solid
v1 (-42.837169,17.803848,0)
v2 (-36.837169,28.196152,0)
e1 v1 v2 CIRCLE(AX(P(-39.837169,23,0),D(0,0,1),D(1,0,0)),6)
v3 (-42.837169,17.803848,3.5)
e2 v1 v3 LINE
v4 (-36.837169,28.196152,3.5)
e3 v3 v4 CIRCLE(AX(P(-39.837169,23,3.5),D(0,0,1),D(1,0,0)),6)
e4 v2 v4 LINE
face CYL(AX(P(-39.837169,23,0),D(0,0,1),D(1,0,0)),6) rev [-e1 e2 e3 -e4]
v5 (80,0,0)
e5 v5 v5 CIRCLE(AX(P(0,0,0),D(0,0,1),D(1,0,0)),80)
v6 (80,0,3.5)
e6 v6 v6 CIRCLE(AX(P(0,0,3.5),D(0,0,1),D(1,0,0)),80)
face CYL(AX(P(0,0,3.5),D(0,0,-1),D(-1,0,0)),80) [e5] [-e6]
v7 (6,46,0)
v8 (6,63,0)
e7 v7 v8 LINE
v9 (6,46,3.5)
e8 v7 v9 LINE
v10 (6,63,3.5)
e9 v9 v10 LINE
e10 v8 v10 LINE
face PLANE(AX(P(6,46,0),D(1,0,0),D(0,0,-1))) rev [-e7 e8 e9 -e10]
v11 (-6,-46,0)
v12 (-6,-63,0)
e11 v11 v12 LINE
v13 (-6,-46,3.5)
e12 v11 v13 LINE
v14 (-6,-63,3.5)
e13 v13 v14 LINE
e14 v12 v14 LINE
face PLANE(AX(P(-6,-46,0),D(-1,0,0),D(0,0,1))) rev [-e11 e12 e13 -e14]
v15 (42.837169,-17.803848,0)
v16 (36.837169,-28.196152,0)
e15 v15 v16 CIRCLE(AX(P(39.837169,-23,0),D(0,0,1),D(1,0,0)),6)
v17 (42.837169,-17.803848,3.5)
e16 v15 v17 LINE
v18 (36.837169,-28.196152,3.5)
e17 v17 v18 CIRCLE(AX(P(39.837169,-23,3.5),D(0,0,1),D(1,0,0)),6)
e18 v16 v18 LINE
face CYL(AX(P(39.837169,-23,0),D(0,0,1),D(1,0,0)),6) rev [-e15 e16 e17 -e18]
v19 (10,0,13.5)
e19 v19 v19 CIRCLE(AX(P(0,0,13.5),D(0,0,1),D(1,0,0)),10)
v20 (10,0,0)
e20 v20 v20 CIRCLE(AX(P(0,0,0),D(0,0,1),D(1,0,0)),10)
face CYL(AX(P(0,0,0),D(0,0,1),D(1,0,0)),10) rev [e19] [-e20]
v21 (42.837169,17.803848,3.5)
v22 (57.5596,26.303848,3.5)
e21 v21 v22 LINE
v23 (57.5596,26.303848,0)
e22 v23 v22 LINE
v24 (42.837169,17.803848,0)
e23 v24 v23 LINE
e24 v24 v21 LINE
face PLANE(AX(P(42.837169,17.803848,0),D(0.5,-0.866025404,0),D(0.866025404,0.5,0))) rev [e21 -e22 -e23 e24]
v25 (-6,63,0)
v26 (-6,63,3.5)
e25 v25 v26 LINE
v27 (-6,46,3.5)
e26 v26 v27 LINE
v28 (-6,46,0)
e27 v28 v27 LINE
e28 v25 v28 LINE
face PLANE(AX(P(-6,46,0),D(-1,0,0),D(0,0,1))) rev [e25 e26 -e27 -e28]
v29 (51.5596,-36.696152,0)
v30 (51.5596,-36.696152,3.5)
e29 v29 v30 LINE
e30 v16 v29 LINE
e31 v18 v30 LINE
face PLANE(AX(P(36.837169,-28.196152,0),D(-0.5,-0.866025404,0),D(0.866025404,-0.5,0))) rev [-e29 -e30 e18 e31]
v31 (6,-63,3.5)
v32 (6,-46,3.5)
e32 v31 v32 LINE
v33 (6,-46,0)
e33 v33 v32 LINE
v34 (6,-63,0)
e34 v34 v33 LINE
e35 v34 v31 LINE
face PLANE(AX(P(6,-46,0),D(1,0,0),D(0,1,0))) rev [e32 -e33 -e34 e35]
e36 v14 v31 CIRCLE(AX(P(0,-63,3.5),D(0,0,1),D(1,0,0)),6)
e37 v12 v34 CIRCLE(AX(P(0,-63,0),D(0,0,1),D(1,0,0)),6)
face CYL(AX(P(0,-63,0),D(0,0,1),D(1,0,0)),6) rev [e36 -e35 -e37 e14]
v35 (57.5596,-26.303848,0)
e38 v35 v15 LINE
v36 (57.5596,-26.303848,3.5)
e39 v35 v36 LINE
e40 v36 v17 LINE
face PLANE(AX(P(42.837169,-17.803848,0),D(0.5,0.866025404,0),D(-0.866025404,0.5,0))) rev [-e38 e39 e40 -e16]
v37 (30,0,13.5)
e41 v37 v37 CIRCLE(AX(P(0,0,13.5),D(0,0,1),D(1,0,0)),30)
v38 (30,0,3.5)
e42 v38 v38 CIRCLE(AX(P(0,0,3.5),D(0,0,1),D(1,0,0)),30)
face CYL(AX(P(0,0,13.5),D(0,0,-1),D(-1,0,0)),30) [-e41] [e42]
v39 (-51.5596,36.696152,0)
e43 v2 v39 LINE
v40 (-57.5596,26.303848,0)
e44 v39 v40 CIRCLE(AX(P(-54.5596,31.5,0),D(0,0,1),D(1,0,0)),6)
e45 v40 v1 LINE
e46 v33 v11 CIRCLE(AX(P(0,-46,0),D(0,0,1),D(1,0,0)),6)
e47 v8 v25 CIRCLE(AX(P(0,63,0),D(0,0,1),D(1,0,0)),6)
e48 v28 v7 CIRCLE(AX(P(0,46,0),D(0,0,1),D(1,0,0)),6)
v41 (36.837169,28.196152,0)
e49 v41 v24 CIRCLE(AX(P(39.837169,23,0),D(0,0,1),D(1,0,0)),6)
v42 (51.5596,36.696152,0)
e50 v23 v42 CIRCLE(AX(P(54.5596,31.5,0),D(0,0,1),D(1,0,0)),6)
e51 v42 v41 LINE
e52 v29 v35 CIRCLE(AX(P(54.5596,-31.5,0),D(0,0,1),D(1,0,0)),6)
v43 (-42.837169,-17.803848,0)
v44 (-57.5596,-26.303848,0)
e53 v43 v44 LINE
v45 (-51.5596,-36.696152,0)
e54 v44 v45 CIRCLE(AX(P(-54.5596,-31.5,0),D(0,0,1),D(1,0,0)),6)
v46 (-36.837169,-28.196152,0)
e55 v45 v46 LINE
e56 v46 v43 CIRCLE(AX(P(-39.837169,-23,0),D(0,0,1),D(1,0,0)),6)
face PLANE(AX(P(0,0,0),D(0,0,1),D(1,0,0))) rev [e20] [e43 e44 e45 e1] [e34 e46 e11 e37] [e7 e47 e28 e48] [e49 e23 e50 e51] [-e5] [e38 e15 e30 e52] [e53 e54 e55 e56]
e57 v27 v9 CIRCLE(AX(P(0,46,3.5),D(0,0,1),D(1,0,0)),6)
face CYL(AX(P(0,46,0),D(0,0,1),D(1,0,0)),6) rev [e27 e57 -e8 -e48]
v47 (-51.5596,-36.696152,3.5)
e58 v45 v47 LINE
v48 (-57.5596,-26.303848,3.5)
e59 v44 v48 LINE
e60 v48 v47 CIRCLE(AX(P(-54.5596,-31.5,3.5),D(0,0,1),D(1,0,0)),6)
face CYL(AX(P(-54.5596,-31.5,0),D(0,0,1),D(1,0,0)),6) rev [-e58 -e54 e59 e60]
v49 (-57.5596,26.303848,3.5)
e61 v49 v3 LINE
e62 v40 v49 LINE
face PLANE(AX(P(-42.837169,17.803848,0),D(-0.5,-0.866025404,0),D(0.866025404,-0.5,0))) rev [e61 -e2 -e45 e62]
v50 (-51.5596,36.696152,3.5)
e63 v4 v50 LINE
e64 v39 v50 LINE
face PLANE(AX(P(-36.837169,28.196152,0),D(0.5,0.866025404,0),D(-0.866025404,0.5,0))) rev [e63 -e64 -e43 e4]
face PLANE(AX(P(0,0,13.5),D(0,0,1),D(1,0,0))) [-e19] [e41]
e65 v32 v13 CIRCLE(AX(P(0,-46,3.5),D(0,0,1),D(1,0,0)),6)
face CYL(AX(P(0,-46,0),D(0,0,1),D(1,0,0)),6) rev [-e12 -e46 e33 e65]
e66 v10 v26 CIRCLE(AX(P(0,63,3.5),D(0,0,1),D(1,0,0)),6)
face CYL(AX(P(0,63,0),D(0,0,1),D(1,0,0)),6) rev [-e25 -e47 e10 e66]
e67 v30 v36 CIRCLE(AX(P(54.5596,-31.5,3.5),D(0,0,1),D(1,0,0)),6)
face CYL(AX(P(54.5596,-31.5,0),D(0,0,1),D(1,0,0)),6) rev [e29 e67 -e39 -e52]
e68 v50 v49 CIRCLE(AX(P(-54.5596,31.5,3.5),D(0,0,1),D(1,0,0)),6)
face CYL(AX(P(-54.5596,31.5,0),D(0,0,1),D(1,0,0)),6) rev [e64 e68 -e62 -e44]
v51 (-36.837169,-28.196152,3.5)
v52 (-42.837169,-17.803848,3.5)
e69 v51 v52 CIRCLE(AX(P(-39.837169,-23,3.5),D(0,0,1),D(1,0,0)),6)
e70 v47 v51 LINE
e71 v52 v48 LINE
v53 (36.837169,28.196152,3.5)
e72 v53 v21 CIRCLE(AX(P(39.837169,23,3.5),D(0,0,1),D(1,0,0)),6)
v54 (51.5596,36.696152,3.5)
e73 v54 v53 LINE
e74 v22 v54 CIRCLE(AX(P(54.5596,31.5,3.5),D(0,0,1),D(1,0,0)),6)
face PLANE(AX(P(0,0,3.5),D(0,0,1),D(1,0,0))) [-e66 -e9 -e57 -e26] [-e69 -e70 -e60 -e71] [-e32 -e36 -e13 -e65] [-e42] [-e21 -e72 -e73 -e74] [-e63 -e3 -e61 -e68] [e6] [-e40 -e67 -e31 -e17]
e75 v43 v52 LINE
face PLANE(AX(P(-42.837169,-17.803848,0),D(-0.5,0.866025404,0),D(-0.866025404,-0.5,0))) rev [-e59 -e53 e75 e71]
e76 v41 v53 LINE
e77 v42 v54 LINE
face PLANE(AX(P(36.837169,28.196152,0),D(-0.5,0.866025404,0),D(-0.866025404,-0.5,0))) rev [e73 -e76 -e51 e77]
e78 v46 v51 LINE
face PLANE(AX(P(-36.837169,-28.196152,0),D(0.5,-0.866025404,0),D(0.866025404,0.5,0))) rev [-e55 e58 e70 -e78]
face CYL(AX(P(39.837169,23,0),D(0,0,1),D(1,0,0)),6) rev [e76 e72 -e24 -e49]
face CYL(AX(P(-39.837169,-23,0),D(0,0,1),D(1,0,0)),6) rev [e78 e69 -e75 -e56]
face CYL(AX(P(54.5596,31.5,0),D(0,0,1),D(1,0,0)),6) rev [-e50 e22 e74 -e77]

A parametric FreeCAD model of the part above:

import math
import FreeCAD as App
import Part
import Sketcher
from FreeCAD import Vector
Q = App.Units.Quantity

doc = App.newDocument("Part")
body = doc.addObject("PartDesign::Body", "Body")

sketch1 = body.newObject("Sketcher::SketchObject", "Sketch")
sketch1.AttachmentSupport = (doc.getObject("XY_Plane"), [""])
sketch1.MapMode = "FlatFace"
sketch1.addGeometry(Part.Circle(Vector(0, 0, 0), Vector(0, 0, 1), 80), False)
sketch1.addConstraint(Sketcher.Constraint("Coincident", 0, 3, -1, 1))
sketch1.addConstraint(Sketcher.Constraint("Diameter", 0, 160.0))
pad1 = body.newObject("PartDesign::Pad", "Pad")
pad1.Profile = sketch1
pad1.Length = 3.5

sketch2 = body.newObject("Sketcher::SketchObject", "Sketch001")
sketch2.AttachmentSupport = (doc.getObject("XY_Plane"), [""])
sketch2.MapMode = "FlatFace"
sketch2.AttachmentOffset = App.Placement(Vector(0, 0, 3.5), App.Rotation())
sketch2.addGeometry(Part.Circle(Vector(0, 0, 0), Vector(0, 0, 1), 10), False)
sketch2.addConstraint(Sketcher.Constraint("Coincident", 0, 3, -1, 1))
sketch2.addConstraint(Sketcher.Constraint("Diameter", 0, 20.0))
pocket1 = body.newObject("PartDesign::Pocket", "Pocket")
pocket1.Profile = sketch2
pocket1.Length = 3.5

sketch3 = body.newObject("Sketcher::SketchObject", "Sketch002")
sketch3.AttachmentSupport = (doc.getObject("XY_Plane"), [""])
sketch3.MapMode = "FlatFace"
sketch3.AttachmentOffset = App.Placement(Vector(0, 0, 13.5), App.Rotation())
sketch3.addGeometry(Part.Circle(Vector(0, 0, 0), Vector(0, 0, 1), 30), False)
sketch3.addGeometry(Part.Circle(Vector(0, 0, 0), Vector(0, 0, 1), 10), False)
sketch3.addConstraint(Sketcher.Constraint("Coincident", 0, 3, -1, 1))
sketch3.addConstraint(Sketcher.Constraint("Coincident", 1, 3, -1, 1))
sketch3.addConstraint(Sketcher.Constraint("Diameter", 0, 60.0))
sketch3.addConstraint(Sketcher.Constraint("Diameter", 1, 20.0))
pad2 = body.newObject("PartDesign::Pad", "Pad001")
pad2.Profile = sketch3
pad2.Length = 10
pad2.Reversed = True

sketch4 = body.newObject("Sketcher::SketchObject", "Sketch003")
sketch4.AttachmentSupport = (doc.getObject("XY_Plane"), [""])
sketch4.MapMode = "FlatFace"
sketch4.AttachmentOffset = App.Placement(Vector(0, 0, 3.5), App.Rotation())
sketch4.addGeometry(Part.LineSegment(Vector(52, 37, 0), Vector(37, 28, 0)), False)
sketch4.addGeometry(Part.ArcOfCircle(Part.Circle(Vector(40, 23, 0), Vector(0, 0, 1), 6), math.radians(120), math.radians(300)), False)
sketch4.addGeometry(Part.LineSegment(Vector(43, 18, 0), Vector(58, 26, 0)), False)
sketch4.addGeometry(Part.ArcOfCircle(Part.Circle(Vector(55, 32, 0), Vector(0, 0, 1), 6), math.radians(-60), math.radians(120)), False)
sketch4.addGeometry(Part.LineSegment(Vector(58, -26, 0), Vector(43, -18, 0)), False)
sketch4.addGeometry(Part.ArcOfCircle(Part.Circle(Vector(40, -23, 0), Vector(0, 0, 1), 6), math.radians(60), math.radians(240)), False)
sketch4.addGeometry(Part.LineSegment(Vector(37, -28, 0), Vector(52, -37, 0)), False)
sketch4.addGeometry(Part.ArcOfCircle(Part.Circle(Vector(55, -32, 0), Vector(0, 0, 1), 6), math.radians(-120), math.radians(60)), False)
sketch4.addGeometry(Part.LineSegment(Vector(6, -63, 0), Vector(6, -46, 0)), False)
sketch4.addGeometry(Part.ArcOfCircle(Part.Circle(Vector(0, -46, 0), Vector(0, 0, 1), 6), math.radians(0), math.radians(180)), False)
sketch4.addGeometry(Part.LineSegment(Vector(-6, -46, 0), Vector(-6, -63, 0)), False)
sketch4.addGeometry(Part.ArcOfCircle(Part.Circle(Vector(0, -63, 0), Vector(0, 0, 1), 6), math.radians(180), math.radians(360)), False)
sketch4.addGeometry(Part.LineSegment(Vector(-52, -37, 0), Vector(-37, -28, 0)), False)
sketch4.addGeometry(Part.ArcOfCircle(Part.Circle(Vector(-40, -23, 0), Vector(0, 0, 1), 6), math.radians(-60), math.radians(120)), False)
sketch4.addGeometry(Part.LineSegment(Vector(-43, -18, 0), Vector(-58, -26, 0)), False)
sketch4.addGeometry(Part.ArcOfCircle(Part.Circle(Vector(-55, -32, 0), Vector(0, 0, 1), 6), math.radians(120), math.radians(300)), False)
sketch4.addGeometry(Part.LineSegment(Vector(-58, 26, 0), Vector(-43, 18, 0)), False)
sketch4.addGeometry(Part.ArcOfCircle(Part.Circle(Vector(-40, 23, 0), Vector(0, 0, 1), 6), math.radians(-120), math.radians(60)), False)
sketch4.addGeometry(Part.LineSegment(Vector(-37, 28, 0), Vector(-52, 37, 0)), False)
sketch4.addGeometry(Part.ArcOfCircle(Part.Circle(Vector(-55, 32, 0), Vector(0, 0, 1), 6), math.radians(60), math.radians(240)), False)
sketch4.addGeometry(Part.LineSegment(Vector(-6, 63, 0), Vector(-6, 46, 0)), False)
sketch4.addGeometry(Part.ArcOfCircle(Part.Circle(Vector(0, 46, 0), Vector(0, 0, 1), 6), math.radians(180), math.radians(360)), False)
sketch4.addGeometry(Part.LineSegment(Vector(6, 46, 0), Vector(6, 63, 0)), False)
sketch4.addGeometry(Part.ArcOfCircle(Part.Circle(Vector(0, 63, 0), Vector(0, 0, 1), 6), math.radians(0), math.radians(180)), False)
sketch4.addConstraint(Sketcher.Constraint("Tangent", 0, 2, 1, 1))
sketch4.addConstraint(Sketcher.Constraint("Tangent", 1, 2, 2, 1))
sketch4.addConstraint(Sketcher.Constraint("Tangent", 2, 2, 3, 1))
sketch4.addConstraint(Sketcher.Constraint("Tangent", 3, 2, 0, 1))
sketch4.addConstraint(Sketcher.Constraint("Tangent", 4, 2, 5, 1))
sketch4.addConstraint(Sketcher.Constraint("Tangent", 5, 2, 6, 1))
sketch4.addConstraint(Sketcher.Constraint("Tangent", 6, 2, 7, 1))
sketch4.addConstraint(Sketcher.Constraint("Tangent", 7, 2, 4, 1))
sketch4.addConstraint(Sketcher.Constraint("Tangent", 8, 2, 9, 1))
sketch4.addConstraint(Sketcher.Constraint("Tangent", 9, 2, 10, 1))
sketch4.addConstraint(Sketcher.Constraint("Tangent", 10, 2, 11, 1))
sketch4.addConstraint(Sketcher.Constraint("Tangent", 11, 2, 8, 1))
sketch4.addConstraint(Sketcher.Constraint("Tangent", 12, 2, 13, 1))
sketch4.addConstraint(Sketcher.Constraint("Tangent", 13, 2, 14, 1))
sketch4.addConstraint(Sketcher.Constraint("Tangent", 14, 2, 15, 1))
sketch4.addConstraint(Sketcher.Constraint("Tangent", 15, 2, 12, 1))
sketch4.addConstraint(Sketcher.Constraint("Tangent", 16, 2, 17, 1))
sketch4.addConstraint(Sketcher.Constraint("Tangent", 17, 2, 18, 1))
sketch4.addConstraint(Sketcher.Constraint("Tangent", 18, 2, 19, 1))
sketch4.addConstraint(Sketcher.Constraint("Tangent", 19, 2, 16, 1))
sketch4.addConstraint(Sketcher.Constraint("Tangent", 20, 2, 21, 1))
sketch4.addConstraint(Sketcher.Constraint("Tangent", 21, 2, 22, 1))
sketch4.addConstraint(Sketcher.Constraint("Tangent", 22, 2, 23, 1))
sketch4.addConstraint(Sketcher.Constraint("Tangent", 23, 2, 20, 1))
sketch4.addConstraint(Sketcher.Constraint("Vertical", 8))
sketch4.addConstraint(Sketcher.Constraint("Vertical", 10))
sketch4.addConstraint(Sketcher.Constraint("Vertical", 20))
sketch4.addConstraint(Sketcher.Constraint("Vertical", 22))
sketch4.addConstraint(Sketcher.Constraint("Equal", 1, 3))
sketch4.addConstraint(Sketcher.Constraint("Equal", 3, 5))
sketch4.addConstraint(Sketcher.Constraint("Equal", 5, 7))
sketch4.addConstraint(Sketcher.Constraint("Equal", 7, 9))
sketch4.addConstraint(Sketcher.Constraint("Equal", 11, 13))
sketch4.addConstraint(Sketcher.Constraint("Equal", 13, 15))
sketch4.addConstraint(Sketcher.Constraint("Equal", 15, 17))
sketch4.addConstraint(Sketcher.Constraint("Equal", 17, 19))
sketch4.addConstraint(Sketcher.Constraint("Equal", 19, 21))
sketch4.addConstraint(Sketcher.Constraint("Symmetric", 1, 3, 13, 3, -1, 1))
sketch4.addConstraint(Sketcher.Constraint("Symmetric", 3, 3, 15, 3, -1, 1))
sketch4.addConstraint(Sketcher.Constraint("Symmetric", 5, 3, 17, 3, -1, 1))
sketch4.addConstraint(Sketcher.Constraint("Symmetric", 7, 3, 19, 3, -1, 1))
sketch4.addConstraint(Sketcher.Constraint("Symmetric", 9, 3, 21, 3, -1, 1))
sketch4.addConstraint(Sketcher.Constraint("Symmetric", 5, 3, 13, 3, -2))
sketch4.addConstraint(Sketcher.Constraint("Symmetric", 7, 3, 15, 3, -2))
sketch4.addConstraint(Sketcher.Constraint("Symmetric", 11, 3, 23, 3, -1))
sketch4.addConstraint(Sketcher.Constraint("Radius", 1, 6.0))
sketch4.addConstraint(Sketcher.Constraint("DistanceY", 8, 1, 8, 2, 17.0))
sketch4.addConstraint(Sketcher.Constraint("Angle", 0, Q("-150 deg")))
sketch4.addConstraint(Sketcher.Constraint("Distance", 0, 17.0))
sketch4.addConstraint(Sketcher.Constraint("DistanceY", -1, 1, 1, 3, 23.0))
sketch4.addConstraint(Sketcher.Constraint("DistanceY", 9, 3, -1, 1, 46.0))
sketch4.addConstraint(Sketcher.Constraint("DistanceX", -1, 1, 3, 3, 54.5596))
pocket2 = body.newObject("PartDesign::Pocket", "Pocket001")
pocket2.Profile = sketch4
pocket2.Length = 3.5

doc.recompute()
